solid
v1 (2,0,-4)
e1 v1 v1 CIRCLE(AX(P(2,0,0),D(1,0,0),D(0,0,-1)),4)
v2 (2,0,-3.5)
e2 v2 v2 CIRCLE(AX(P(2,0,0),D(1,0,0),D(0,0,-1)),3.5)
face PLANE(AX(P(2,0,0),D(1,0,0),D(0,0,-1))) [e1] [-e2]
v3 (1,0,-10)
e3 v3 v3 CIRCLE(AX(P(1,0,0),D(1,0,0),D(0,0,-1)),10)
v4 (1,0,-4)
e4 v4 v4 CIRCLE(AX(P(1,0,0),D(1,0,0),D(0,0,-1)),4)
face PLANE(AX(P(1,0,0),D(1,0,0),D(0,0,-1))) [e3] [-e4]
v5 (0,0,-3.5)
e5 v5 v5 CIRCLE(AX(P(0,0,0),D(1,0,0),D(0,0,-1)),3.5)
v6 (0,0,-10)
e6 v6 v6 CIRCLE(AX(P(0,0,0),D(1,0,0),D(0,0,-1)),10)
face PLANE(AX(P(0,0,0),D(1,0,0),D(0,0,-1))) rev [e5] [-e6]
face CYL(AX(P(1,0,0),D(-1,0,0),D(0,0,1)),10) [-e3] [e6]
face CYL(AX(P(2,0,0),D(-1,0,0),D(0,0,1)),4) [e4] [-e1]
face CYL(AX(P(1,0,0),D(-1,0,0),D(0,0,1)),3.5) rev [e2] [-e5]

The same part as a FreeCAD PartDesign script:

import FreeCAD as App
import Part
import Sketcher
Q = App.Units.Quantity

doc = App.newDocument("Part")
body = doc.addObject("PartDesign::Body", "Body")

# Sketch on YZ plane
sketch1 = body.newObject("Sketcher::SketchObject", "Sketch")
sketch1.AttachmentSupport = (doc.getObject("YZ_Plane"), [""])
sketch1.MapMode = "FlatFace"
sketch1.addGeometry([
    Part.Circle(App.Vector(0, 0, 0), App.Vector(0, 0, 1), 10),
    Part.Circle(App.Vector(0, 0, 0), App.Vector(0, 0, 1), 3.5),
], False)
sketch1.addConstraint([
    Sketcher.Constraint("Coincident", 0, 3, -1, 1),
    Sketcher.Constraint("Coincident", 1, 3, -1, 1),
    Sketcher.Constraint("Diameter", 0, Q("20 mm")),
    Sketcher.Constraint("Diameter", 1, Q("7 mm")),
])
pad1 = body.newObject("PartDesign::Pad", "Pad")
pad1.Profile = sketch1
pad1.Length = 1

# Sketch on YZ plane
sketch2 = body.newObject("Sketcher::SketchObject", "Sketch001")
sketch2.AttachmentSupport = (doc.getObject("YZ_Plane"), [""])
sketch2.MapMode = "FlatFace"
sketch2.AttachmentOffset = App.Placement(App.Vector(0, 0, 1), App.Rotation())
sketch2.addGeometry([
    Part.Circle(App.Vector(0, 0, 0), App.Vector(0, 0, 1), 4),
    Part.Circle(App.Vector(0, 0, 0), App.Vector(0, 0, 1), 3.5),
], False)
sketch2.addConstraint([
    Sketcher.Constraint("Coincident", 0, 3, -1, 1),
    Sketcher.Constraint("Coincident", 1, 3, -1, 1),
    Sketcher.Constraint("Diameter", 0, Q("8 mm")),
    Sketcher.Constraint("Diameter", 1, Q("7 mm")),
])
pad2 = body.newObject("PartDesign::Pad", "Pad001")
pad2.Profile = sketch2
pad2.Length = 1

doc.recompute()
